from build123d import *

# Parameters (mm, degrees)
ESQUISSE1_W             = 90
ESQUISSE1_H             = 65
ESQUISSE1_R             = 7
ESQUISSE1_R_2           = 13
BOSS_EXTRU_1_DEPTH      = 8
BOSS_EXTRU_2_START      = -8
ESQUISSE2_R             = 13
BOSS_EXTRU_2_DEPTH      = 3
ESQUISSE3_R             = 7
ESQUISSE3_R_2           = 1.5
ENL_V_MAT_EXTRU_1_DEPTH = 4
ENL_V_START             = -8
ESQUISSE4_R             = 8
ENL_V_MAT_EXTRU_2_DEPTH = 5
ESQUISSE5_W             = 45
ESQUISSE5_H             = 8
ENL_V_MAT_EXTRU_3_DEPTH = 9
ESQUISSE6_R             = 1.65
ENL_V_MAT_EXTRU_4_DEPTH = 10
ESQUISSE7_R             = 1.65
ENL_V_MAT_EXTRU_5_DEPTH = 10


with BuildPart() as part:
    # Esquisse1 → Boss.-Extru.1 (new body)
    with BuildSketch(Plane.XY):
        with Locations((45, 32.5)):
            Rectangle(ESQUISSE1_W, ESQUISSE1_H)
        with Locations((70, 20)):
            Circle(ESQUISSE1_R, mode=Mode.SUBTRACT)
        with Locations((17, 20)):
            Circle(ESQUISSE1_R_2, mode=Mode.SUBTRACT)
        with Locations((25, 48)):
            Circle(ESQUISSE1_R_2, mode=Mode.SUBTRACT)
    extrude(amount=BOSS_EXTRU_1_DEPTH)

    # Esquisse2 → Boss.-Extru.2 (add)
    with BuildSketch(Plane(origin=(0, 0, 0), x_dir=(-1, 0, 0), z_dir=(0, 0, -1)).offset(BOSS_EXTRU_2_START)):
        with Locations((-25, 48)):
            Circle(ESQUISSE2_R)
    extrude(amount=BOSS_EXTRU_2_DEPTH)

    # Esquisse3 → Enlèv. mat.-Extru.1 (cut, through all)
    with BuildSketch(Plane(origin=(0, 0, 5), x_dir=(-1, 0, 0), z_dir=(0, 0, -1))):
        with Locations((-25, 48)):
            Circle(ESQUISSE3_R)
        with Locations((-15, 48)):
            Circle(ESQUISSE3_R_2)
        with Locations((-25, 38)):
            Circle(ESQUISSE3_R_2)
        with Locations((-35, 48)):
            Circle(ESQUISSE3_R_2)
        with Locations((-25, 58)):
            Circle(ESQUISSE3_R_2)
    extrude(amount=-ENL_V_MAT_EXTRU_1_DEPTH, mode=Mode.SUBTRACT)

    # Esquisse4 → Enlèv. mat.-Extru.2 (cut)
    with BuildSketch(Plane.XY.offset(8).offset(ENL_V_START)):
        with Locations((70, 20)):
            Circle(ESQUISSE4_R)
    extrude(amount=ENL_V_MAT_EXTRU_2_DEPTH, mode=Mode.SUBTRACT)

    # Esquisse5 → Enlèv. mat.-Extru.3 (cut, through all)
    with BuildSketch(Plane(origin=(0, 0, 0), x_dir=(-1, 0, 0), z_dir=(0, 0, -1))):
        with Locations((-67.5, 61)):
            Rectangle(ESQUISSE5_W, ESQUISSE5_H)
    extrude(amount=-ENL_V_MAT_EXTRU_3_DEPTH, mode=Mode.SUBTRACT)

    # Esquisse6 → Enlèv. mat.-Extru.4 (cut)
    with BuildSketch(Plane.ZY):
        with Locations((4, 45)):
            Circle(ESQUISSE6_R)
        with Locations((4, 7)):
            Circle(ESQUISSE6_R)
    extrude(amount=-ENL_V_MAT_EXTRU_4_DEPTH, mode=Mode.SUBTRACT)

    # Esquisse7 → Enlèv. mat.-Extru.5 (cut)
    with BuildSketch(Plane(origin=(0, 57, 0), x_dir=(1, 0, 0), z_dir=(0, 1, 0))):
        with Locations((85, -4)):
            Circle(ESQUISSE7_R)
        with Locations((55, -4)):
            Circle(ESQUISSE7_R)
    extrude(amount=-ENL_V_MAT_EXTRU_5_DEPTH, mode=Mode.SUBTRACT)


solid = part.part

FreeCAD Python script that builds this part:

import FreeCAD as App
import Part
import Sketcher

doc = App.newDocument("Part")
params = doc.addObject("Spreadsheet::Sheet", "Params")
for row, (alias, value) in enumerate([
    ("sketch1_diameter", "26 mm"),
    ("sketch1_diameter2", "14 mm"),
    ("sketch1_width", "90 mm"),
    ("sketch1_height", "65 mm"),
    ("pad1_length", "8 mm"),
    ("sketch2_diameter", "26 mm"),
    ("pad2_length", "3 mm"),
    ("sketch3_diameter", "14 mm"),
    ("sketch3_diameter2", "3 mm"),
    ("sketch4_diameter", "16 mm"),
    ("pocket2_length", "5 mm"),
    ("sketch5_width", "45 mm"),
    ("sketch5_height", "8 mm"),
    ("sketch6_diameter", "3.3 mm"),
    ("pocket4_length", "10 mm"),
    ("sketch7_diameter", "3.3 mm"),
    ("pocket5_length", "10 mm"),
], start=1):
    params.set(f"A{row}", alias)
    params.set(f"B{row}", "=" + value)
    params.setAlias(f"B{row}", alias)

body = doc.addObject("PartDesign::Body", "Body")

# Sketch on XY plane
sketch1 = body.newObject("Sketcher::SketchObject", "Sketch")
sketch1.AttachmentSupport = (doc.getObject("XY_Plane"), [""])
sketch1.MapMode = "FlatFace"
sketch1.addGeometry(Part.LineSegment(App.Vector(0, 65, 0), App.Vector(0, 0, 0)), False)
sketch1.addGeometry(Part.LineSegment(App.Vector(0, 0, 0), App.Vector(90, 0, 0)), False)
sketch1.addGeometry(Part.LineSegment(App.Vector(90, 0, 0), App.Vector(90, 65, 0)), False)
sketch1.addGeometry(Part.LineSegment(App.Vector(90, 65, 0), App.Vector(0, 65, 0)), False)
sketch1.addGeometry(Part.Circle(App.Vector(17, 20, 0), App.Vector(0, 0, 1), 13), False)
sketch1.addGeometry(Part.Circle(App.Vector(70, 20, 0), App.Vector(0, 0, 1), 7), False)
sketch1.addGeometry(Part.Circle(App.Vector(25, 48, 0), App.Vector(0, 0, 1), 13), False)
sketch1.addConstraint(Sketcher.Constraint("Coincident", 0, 2, 1, 1))
sketch1.addConstraint(Sketcher.Constraint("Coincident", 1, 2, 2, 1))
sketch1.addConstraint(Sketcher.Constraint("Coincident", 2, 2, 3, 1))
sketch1.addConstraint(Sketcher.Constraint("Coincident", 3, 2, 0, 1))
sketch1.addConstraint(Sketcher.Constraint("Vertical", 0))
sketch1.addConstraint(Sketcher.Constraint("Horizontal", 1))
sketch1.addConstraint(Sketcher.Constraint("Vertical", 2))
sketch1.addConstraint(Sketcher.Constraint("Horizontal", 3))
sketch1.addConstraint(Sketcher.Constraint("Coincident", 0, 2, -1, 1))
sketch1.addConstraint(Sketcher.Constraint("Equal", 4, 6))
sketch1.addConstraint(Sketcher.Constraint("Horizontal", 4, 3, 5, 3))
sketch1.addConstraint(Sketcher.Constraint("Diameter", 4, 26.0))
sketch1.addConstraint(Sketcher.Constraint("Diameter", 5, 14.0))
sketch1.addConstraint(Sketcher.Constraint("DistanceX", 1, 1, 1, 2, 90.0))
sketch1.addConstraint(Sketcher.Constraint("DistanceY", 0, 2, 0, 1, 65.0))
sketch1.addConstraint(Sketcher.Constraint("DistanceX", -1, 1, 4, 3, 17.0))
sketch1.addConstraint(Sketcher.Constraint("DistanceY", -1, 1, 4, 3, 20.0))
sketch1.addConstraint(Sketcher.Constraint("DistanceX", -1, 1, 5, 3, 70.0))
sketch1.addConstraint(Sketcher.Constraint("DistanceX", -1, 1, 6, 3, 25.0))
sketch1.addConstraint(Sketcher.Constraint("DistanceY", -1, 1, 6, 3, 48.0))
sketch1.setExpression("Constraints[11]", "Params.sketch1_diameter")
sketch1.setExpression("Constraints[12]", "Params.sketch1_diameter2")
sketch1.setExpression("Constraints[13]", "Params.sketch1_width")
sketch1.setExpression("Constraints[14]", "Params.sketch1_height")
pad1 = body.newObject("PartDesign::Pad", "Pad")
pad1.Profile = sketch1
pad1.setExpression("Length", "Params.pad1_length")

# Sketch on XY plane
sketch2 = body.newObject("Sketcher::SketchObject", "Sketch001")
sketch2.AttachmentSupport = (doc.getObject("XY_Plane"), [""])
sketch2.MapMode = "FlatFace"
sketch2.AttachmentOffset = App.Placement(App.Vector(0, 0, 8), App.Rotation())
sketch2.addGeometry(Part.Circle(App.Vector(25, 48, 0), App.Vector(0, 0, 1), 13), False)
sketch2.addConstraint(Sketcher.Constraint("Diameter", 0, 26.0))
sketch2.addConstraint(Sketcher.Constraint("DistanceX", -1, 1, 0, 3, 25.0))
sketch2.addConstraint(Sketcher.Constraint("DistanceY", -1, 1, 0, 3, 48.0))
sketch2.setExpression("Constraints[0]", "Params.sketch2_diameter")
pad2 = body.newObject("PartDesign::Pad", "Pad001")
pad2.Profile = sketch2
pad2.setExpression("Length", "Params.pad2_length")
pad2.Reversed = True

# Sketch on XY plane
sketch3 = body.newObject("Sketcher::SketchObject", "Sketch002")
sketch3.AttachmentSupport = (doc.getObject("XY_Plane"), [""])
sketch3.MapMode = "FlatFace"
sketch3.AttachmentOffset = App.Placement(App.Vector(0, 0, 5), App.Rotation())
sketch3.addGeometry(Part.Circle(App.Vector(25, 48, 0), App.Vector(0, 0, 1), 7), False)
sketch3.addGeometry(Part.Circle(App.Vector(15, 48, 0), App.Vector(0, 0, 1), 1.5), False)
sketch3.addGeometry(Part.Circle(App.Vector(25, 38, 0), App.Vector(0, 0, 1), 1.5), False)
sketch3.addGeometry(Part.Circle(App.Vector(35, 48, 0), App.Vector(0, 0, 1), 1.5), False)
sketch3.addGeometry(Part.Circle(App.Vector(25, 58, 0), App.Vector(0, 0, 1), 1.5), False)
sketch3.addConstraint(Sketcher.Constraint("Equal", 1, 2))
sketch3.addConstraint(Sketcher.Constraint("Equal", 2, 3))
sketch3.addConstraint(Sketcher.Constraint("Equal", 3, 4))
sketch3.addConstraint(Sketcher.Constraint("Horizontal", 0, 3, 1, 3))
sketch3.addConstraint(Sketcher.Constraint("Horizontal", 1, 3, 3, 3))
sketch3.addConstraint(Sketcher.Constraint("Vertical", 0, 3, 2, 3))
sketch3.addConstraint(Sketcher.Constraint("Vertical", 2, 3, 4, 3))
sketch3.addConstraint(Sketcher.Constraint("Diameter", 0, 14.0))
sketch3.addConstraint(Sketcher.Constraint("Diameter", 1, 3.0))
sketch3.addConstraint(Sketcher.Constraint("DistanceX", -1, 1, 0, 3, 25.0))
sketch3.addConstraint(Sketcher.Constraint("DistanceY", -1, 1, 0, 3, 48.0))
sketch3.addConstraint(Sketcher.Constraint("DistanceX", -1, 1, 1, 3, 15.0))
sketch3.addConstraint(Sketcher.Constraint("DistanceY", -1, 1, 2, 3, 38.0))
sketch3.addConstraint(Sketcher.Constraint("DistanceX", -1, 1, 3, 3, 35.0))
sketch3.addConstraint(Sketcher.Constraint("DistanceY", -1, 1, 4, 3, 58.0))
sketch3.setExpression("Constraints[7]", "Params.sketch3_diameter")
sketch3.setExpression("Constraints[8]", "Params.sketch3_diameter2")
pocket1 = body.newObject("PartDesign::Pocket", "Pocket")
pocket1.Profile = sketch3
pocket1.Type = "ThroughAll"
pocket1.Reversed = True

# Sketch on XY plane
sketch4 = body.newObject("Sketcher::SketchObject", "Sketch003")
sketch4.AttachmentSupport = (doc.getObject("XY_Plane"), [""])
sketch4.MapMode = "FlatFace"
sketch4.addGeometry(Part.Circle(App.Vector(70, 20, 0), App.Vector(0, 0, 1), 8), False)
sketch4.addConstraint(Sketcher.Constraint("Diameter", 0, 16.0))
sketch4.addConstraint(Sketcher.Constraint("DistanceX", -1, 1, 0, 3, 70.0))
sketch4.addConstraint(Sketcher.Constraint("DistanceY", -1, 1, 0, 3, 20.0))
sketch4.setExpression("Constraints[0]", "Params.sketch4_diameter")
pocket2 = body.newObject("PartDesign::Pocket", "Pocket001")
pocket2.Profile = sketch4
pocket2.setExpression("Length", "Params.pocket2_length")
pocket2.Reversed = True

# Sketch on XY plane
sketch5 = body.newObject("Sketcher::SketchObject", "Sketch004")
sketch5.AttachmentSupport = (doc.getObject("XY_Plane"), [""])
sketch5.MapMode = "FlatFace"
sketch5.addGeometry(Part.LineSegment(App.Vector(90, 65, 0), App.Vector(90, 57, 0)), False)
sketch5.addGeometry(Part.LineSegment(App.Vector(90, 57, 0), App.Vector(45, 57, 0)), False)
sketch5.addGeometry(Part.LineSegment(App.Vector(45, 57, 0), App.Vector(45, 65, 0)), False)
sketch5.addGeometry(Part.LineSegment(App.Vector(45, 65, 0), App.Vector(90, 65, 0)), False)
sketch5.addConstraint(Sketcher.Constraint("Coincident", 0, 2, 1, 1))
sketch5.addConstraint(Sketcher.Constraint("Coincident", 1, 2, 2, 1))
sketch5.addConstraint(Sketcher.Constraint("Coincident", 2, 2, 3, 1))
sketch5.addConstraint(Sketcher.Constraint("Coincident", 3, 2, 0, 1))
sketch5.addConstraint(Sketcher.Constraint("Vertical", 0))
sketch5.addConstraint(Sketcher.Constraint("Horizontal", 1))
sketch5.addConstraint(Sketcher.Constraint("Vertical", 2))
sketch5.addConstraint(Sketcher.Constraint("Horizontal", 3))
sketch5.addConstraint(Sketcher.Constraint("DistanceX", 1, 2, 1, 1, 45.0))
sketch5.addConstraint(Sketcher.Constraint("DistanceY", 0, 2, 0, 1, 8.0))
sketch5.addConstraint(Sketcher.Constraint("DistanceX", -1, 1, 0, 2, 90.0))
sketch5.addConstraint(Sketcher.Constraint("DistanceY", -1, 1, 0, 2, 57.0))
sketch5.setExpression("Constraints[8]", "Params.sketch5_width")
sketch5.setExpression("Constraints[9]", "Params.sketch5_height")
pocket3 = body.newObject("PartDesign::Pocket", "Pocket002")
pocket3.Profile = sketch5
pocket3.Type = "ThroughAll"
pocket3.Reversed = True

# Sketch on YZ plane
sketch6 = body.newObject("Sketcher::SketchObject", "Sketch005")
sketch6.AttachmentSupport = (doc.getObject("YZ_Plane"), [""])
sketch6.MapMode = "FlatFace"
sketch6.addGeometry(Part.Circle(App.Vector(45, 4, 0), App.Vector(0, 0, 1), 1.65), False)
sketch6.addGeometry(Part.Circle(App.Vector(7, 4, 0), App.Vector(0, 0, 1), 1.65), False)
sketch6.addConstraint(Sketcher.Constraint("Equal", 0, 1))
sketch6.addConstraint(Sketcher.Constraint("Horizontal", 0, 3, 1, 3))
sketch6.addConstraint(Sketcher.Constraint("Diameter", 0, 3.3))
sketch6.addConstraint(Sketcher.Constraint("DistanceX", -1, 1, 0, 3, 45.0))
sketch6.addConstraint(Sketcher.Constraint("DistanceY", -1, 1, 0, 3, 4.0))
sketch6.addConstraint(Sketcher.Constraint("DistanceX", -1, 1, 1, 3, 7.0))
sketch6.setExpression("Constraints[2]", "Params.sketch6_diameter")
pocket4 = body.newObject("PartDesign::Pocket", "Pocket003")
pocket4.Profile = sketch6
pocket4.setExpression("Length", "Params.pocket4_length")
pocket4.Reversed = True

# Sketch on XZ plane
sketch7 = body.newObject("Sketcher::SketchObject", "Sketch006")
sketch7.AttachmentSupport = (doc.getObject("XZ_Plane"), [""])
sketch7.MapMode = "FlatFace"
sketch7.AttachmentOffset = App.Placement(App.Vector(0, 0, -57), App.Rotation())
sketch7.addGeometry(Part.Circle(App.Vector(85, 4, 0), App.Vector(0, 0, 1), 1.65), False)
sketch7.addGeometry(Part.Circle(App.Vector(55, 4, 0), App.Vector(0, 0, 1), 1.65), False)
sketch7.addConstraint(Sketcher.Constraint("Equal", 0, 1))
sketch7.addConstraint(Sketcher.Constraint("Horizontal", 0, 3, 1, 3))
sketch7.addConstraint(Sketcher.Constraint("Diameter", 0, 3.3))
sketch7.addConstraint(Sketcher.Constraint("DistanceX", -1, 1, 0, 3, 85.0))
sketch7.addConstraint(Sketcher.Constraint("DistanceY", -1, 1, 0, 3, 4.0))
sketch7.addConstraint(Sketcher.Constraint("DistanceX", -1, 1, 1, 3, 55.0))
sketch7.setExpression("Constraints[2]", "Params.sketch7_diameter")
pocket5 = body.newObject("PartDesign::Pocket", "Pocket004")
pocket5.Profile = sketch7
pocket5.setExpression("Length", "Params.pocket5_length")
pocket5.Reversed = True

doc.recompute()
